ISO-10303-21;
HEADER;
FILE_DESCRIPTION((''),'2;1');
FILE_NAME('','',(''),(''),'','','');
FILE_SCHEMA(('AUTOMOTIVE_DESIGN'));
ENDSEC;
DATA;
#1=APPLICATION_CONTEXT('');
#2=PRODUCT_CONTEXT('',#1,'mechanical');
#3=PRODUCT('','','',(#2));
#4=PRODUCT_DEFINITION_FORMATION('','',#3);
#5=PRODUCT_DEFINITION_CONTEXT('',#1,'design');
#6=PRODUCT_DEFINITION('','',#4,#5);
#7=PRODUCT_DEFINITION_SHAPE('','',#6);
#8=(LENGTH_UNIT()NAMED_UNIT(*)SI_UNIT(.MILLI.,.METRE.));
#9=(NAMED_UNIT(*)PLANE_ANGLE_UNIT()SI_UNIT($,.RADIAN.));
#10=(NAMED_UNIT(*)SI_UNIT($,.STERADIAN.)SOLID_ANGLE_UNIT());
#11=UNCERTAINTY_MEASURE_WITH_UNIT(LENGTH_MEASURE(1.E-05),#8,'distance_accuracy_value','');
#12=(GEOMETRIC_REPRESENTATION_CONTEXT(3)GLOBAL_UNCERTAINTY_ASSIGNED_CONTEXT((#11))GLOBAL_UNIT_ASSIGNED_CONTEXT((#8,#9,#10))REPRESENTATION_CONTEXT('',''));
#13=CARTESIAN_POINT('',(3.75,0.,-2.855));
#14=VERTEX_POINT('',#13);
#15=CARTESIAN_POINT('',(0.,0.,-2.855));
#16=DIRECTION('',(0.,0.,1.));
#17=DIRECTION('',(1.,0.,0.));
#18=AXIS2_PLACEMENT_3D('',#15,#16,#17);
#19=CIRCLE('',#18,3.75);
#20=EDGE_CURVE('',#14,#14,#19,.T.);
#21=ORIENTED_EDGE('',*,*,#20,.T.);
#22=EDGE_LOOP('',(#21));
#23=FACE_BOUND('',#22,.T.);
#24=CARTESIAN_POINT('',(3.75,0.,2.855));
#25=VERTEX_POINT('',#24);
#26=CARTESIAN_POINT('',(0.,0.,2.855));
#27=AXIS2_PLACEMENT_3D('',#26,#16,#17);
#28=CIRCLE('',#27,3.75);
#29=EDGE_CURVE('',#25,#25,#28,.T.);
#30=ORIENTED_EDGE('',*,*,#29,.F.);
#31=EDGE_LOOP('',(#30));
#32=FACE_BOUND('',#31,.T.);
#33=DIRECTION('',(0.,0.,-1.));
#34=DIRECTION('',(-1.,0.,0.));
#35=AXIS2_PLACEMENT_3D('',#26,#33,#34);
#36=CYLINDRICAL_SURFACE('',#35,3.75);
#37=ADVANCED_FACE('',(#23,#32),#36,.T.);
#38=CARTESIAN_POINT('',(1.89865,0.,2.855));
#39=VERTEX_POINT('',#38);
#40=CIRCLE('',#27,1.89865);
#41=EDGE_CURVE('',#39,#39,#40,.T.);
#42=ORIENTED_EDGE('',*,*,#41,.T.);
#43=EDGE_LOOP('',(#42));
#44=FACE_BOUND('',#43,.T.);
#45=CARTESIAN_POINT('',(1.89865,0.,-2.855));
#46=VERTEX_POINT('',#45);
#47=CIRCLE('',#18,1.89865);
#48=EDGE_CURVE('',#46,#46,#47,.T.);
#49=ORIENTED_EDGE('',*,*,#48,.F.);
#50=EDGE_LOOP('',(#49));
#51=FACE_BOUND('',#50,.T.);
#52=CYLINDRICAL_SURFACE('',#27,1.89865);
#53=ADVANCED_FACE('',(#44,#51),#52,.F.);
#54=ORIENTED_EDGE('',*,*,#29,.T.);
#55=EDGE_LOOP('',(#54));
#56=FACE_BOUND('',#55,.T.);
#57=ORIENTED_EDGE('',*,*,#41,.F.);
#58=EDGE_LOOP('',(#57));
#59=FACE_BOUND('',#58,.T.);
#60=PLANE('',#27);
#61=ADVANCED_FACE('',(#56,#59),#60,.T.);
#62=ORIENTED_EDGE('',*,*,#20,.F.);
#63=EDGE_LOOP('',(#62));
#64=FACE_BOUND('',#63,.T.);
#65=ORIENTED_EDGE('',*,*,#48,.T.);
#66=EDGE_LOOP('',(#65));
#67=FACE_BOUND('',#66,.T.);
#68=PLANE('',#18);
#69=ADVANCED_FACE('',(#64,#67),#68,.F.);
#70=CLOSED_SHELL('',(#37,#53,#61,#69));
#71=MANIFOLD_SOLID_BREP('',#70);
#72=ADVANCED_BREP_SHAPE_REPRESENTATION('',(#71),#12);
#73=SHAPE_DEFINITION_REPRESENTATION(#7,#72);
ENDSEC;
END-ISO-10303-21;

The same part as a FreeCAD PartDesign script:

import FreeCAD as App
import Part
import Sketcher

V = App.Vector

doc = App.newDocument("Part")
body = doc.addObject("PartDesign::Body", "Body")

sketch1 = body.newObject("Sketcher::SketchObject", "Sketch")
sketch1.AttachmentSupport = (doc.getObject("XY_Plane"), [""])
sketch1.MapMode = "FlatFace"
sketch1.addGeometry(Part.Circle(V(0, 0, 0), V(0, 0, 1), 3.8), False)
sketch1.addConstraint([
    Sketcher.Constraint("Coincident", 0, 3, -1, 1),
    Sketcher.Constraint("Diameter", 0, 7.5),
])
pad1 = body.newObject("PartDesign::Pad", "Pad")
pad1.Profile = sketch1
pad1.Length = 5.71
pad1.Midplane = True

sketch2 = body.newObject("Sketcher::SketchObject", "Sketch001")
sketch2.AttachmentSupport = (doc.getObject("XY_Plane"), [""])
sketch2.MapMode = "FlatFace"
sketch2.AttachmentOffset = App.Placement(V(0, 0, 2.855), App.Rotation())
sketch2.addGeometry(Part.Circle(V(0, 0, 0), V(0, 0, 1), 1.9), False)
sketch2.addConstraint([
    Sketcher.Constraint("Coincident", 0, 3, -1, 1),
    Sketcher.Constraint("Diameter", 0, 3.7973),
])
doc.recompute()
hole = body.newObject("PartDesign::Hole", "Hole")
hole.Profile = sketch2
hole.ThreadType = "None"
hole.Diameter = 3.7973
hole.DepthType = "ThroughAll"

doc.recompute()
